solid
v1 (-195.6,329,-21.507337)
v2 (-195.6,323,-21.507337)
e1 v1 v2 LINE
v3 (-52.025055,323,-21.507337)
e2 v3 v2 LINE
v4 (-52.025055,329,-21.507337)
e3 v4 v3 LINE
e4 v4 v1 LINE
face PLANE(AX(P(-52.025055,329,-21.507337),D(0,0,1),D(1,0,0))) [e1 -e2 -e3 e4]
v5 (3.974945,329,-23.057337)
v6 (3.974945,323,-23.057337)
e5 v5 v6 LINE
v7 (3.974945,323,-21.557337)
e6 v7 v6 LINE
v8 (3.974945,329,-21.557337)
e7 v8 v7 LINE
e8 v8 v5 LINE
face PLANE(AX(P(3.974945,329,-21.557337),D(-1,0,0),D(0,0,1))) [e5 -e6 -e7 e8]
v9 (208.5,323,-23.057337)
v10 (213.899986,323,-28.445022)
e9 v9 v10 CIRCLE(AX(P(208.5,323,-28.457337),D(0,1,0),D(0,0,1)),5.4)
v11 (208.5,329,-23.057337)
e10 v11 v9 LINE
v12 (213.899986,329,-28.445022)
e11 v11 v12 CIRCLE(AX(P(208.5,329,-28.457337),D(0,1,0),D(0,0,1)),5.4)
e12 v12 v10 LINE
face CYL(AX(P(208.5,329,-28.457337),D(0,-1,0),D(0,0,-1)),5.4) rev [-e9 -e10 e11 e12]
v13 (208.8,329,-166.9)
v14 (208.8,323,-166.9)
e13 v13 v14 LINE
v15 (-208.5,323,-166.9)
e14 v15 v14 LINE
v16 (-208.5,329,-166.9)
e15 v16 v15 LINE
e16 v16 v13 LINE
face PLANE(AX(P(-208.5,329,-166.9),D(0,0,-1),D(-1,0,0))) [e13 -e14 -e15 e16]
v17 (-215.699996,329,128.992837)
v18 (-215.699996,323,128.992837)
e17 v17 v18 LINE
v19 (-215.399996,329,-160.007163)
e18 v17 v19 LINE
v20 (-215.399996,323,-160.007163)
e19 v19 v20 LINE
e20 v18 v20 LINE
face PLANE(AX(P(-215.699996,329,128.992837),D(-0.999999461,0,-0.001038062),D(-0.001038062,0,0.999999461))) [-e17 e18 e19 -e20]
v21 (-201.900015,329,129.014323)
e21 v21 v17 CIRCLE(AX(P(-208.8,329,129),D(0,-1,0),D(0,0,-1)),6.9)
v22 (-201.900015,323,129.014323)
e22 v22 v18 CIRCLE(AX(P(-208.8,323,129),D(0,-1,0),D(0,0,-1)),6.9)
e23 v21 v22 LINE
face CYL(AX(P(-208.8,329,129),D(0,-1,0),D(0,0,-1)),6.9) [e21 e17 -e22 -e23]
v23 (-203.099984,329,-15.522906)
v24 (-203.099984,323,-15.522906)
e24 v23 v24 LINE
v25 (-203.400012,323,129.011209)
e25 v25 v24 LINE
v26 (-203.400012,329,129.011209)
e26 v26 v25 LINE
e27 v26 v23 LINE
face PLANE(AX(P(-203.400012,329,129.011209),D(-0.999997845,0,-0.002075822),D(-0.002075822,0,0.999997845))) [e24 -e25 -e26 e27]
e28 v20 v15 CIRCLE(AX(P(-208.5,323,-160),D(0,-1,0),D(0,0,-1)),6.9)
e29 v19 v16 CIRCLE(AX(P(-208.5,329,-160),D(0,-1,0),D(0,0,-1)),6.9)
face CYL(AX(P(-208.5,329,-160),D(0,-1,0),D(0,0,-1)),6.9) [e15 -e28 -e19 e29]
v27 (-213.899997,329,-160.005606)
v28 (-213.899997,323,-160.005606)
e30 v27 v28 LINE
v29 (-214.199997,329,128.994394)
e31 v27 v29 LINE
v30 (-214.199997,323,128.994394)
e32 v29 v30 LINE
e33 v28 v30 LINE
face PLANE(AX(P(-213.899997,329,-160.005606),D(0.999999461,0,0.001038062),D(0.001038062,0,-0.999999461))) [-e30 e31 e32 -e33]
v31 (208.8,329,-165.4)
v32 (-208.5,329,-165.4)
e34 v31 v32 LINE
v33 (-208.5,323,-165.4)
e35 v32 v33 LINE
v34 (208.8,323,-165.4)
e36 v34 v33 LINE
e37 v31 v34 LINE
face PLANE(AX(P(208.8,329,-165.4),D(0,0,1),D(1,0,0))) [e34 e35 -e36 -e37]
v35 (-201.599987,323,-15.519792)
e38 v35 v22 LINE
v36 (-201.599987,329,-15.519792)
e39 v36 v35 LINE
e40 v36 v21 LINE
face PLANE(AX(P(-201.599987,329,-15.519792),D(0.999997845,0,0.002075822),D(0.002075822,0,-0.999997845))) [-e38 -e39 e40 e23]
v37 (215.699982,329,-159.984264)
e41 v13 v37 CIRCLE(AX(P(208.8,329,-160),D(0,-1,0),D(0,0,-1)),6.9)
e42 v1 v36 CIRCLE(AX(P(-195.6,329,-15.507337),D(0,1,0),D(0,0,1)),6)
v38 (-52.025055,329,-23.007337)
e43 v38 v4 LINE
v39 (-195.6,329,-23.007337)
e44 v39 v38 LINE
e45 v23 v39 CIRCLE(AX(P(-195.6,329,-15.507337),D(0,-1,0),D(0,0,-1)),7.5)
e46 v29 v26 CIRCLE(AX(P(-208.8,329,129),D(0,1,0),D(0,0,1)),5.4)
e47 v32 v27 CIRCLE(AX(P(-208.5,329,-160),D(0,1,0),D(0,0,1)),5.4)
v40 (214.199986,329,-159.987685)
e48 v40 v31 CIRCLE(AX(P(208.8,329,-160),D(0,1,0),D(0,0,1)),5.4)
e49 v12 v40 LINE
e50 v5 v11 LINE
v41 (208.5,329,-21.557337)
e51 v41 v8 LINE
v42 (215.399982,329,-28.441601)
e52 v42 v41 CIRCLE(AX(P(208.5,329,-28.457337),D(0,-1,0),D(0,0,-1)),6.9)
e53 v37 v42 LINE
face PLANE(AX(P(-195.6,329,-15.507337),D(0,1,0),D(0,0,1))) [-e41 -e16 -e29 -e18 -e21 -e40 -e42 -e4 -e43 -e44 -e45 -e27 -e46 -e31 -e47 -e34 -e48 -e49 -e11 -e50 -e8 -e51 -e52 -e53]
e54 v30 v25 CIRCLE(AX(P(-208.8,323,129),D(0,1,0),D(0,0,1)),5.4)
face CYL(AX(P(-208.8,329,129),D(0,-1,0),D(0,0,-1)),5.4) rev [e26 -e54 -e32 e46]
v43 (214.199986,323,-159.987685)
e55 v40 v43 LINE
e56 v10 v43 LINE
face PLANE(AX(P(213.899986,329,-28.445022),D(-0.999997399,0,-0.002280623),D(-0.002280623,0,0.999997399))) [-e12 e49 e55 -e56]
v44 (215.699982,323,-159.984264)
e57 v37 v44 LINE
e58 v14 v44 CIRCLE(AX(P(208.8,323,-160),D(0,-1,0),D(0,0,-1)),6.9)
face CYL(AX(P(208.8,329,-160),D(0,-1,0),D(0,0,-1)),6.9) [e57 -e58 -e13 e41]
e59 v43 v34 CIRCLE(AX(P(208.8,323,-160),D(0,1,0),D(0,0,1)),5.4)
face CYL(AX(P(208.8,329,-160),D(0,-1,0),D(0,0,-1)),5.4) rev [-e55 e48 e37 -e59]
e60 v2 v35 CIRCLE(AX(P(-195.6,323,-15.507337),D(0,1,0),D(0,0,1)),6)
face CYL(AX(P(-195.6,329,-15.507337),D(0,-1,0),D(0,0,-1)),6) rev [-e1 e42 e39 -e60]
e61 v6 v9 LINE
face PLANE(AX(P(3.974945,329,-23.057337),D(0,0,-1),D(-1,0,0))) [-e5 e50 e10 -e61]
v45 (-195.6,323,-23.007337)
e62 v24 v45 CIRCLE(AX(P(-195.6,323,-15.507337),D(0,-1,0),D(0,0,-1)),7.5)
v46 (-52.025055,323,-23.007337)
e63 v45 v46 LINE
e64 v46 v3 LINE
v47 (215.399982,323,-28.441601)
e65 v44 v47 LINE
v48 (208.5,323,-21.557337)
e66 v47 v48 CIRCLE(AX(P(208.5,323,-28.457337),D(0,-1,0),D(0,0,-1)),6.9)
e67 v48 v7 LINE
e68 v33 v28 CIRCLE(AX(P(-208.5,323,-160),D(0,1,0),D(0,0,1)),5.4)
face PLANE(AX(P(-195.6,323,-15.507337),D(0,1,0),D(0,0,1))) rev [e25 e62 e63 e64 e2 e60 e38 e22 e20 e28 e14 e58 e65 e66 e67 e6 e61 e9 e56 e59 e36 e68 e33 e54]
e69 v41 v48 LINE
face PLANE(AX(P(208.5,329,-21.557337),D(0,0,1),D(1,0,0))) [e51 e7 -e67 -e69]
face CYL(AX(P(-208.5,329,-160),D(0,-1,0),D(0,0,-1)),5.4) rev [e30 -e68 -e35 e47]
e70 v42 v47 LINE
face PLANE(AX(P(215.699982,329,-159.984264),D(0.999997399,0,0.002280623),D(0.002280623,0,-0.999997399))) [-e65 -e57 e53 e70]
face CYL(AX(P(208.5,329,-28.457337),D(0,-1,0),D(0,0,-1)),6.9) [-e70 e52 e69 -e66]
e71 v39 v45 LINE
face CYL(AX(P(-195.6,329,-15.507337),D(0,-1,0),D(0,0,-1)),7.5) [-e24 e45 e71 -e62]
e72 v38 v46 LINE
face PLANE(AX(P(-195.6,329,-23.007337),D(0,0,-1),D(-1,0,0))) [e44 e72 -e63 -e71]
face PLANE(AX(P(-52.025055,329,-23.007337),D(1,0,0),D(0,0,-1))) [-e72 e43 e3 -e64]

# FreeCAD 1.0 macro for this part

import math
import FreeCAD as App
import Part
import Sketcher

V = App.Vector
Q = App.Units.Quantity

doc = App.newDocument("Part")
params = doc.addObject("Spreadsheet::Sheet", "Params")
for row, (alias, value) in enumerate([
    ("sketch1_radius", "6 mm"),
    ("sketch1_radius2", "6.9 mm"),
    ("sketch1_radius3", "5.4 mm"),
    ("sketch1_width", "417.3 mm"),
    ("pad1_length", "6 mm"),
], start=1):
    params.set(f"A{row}", alias)
    params.set(f"B{row}", "=" + value)
    params.setAlias(f"B{row}", alias)

body = doc.addObject("PartDesign::Body", "Body")

sketch1 = body.newObject("Sketcher::SketchObject", "Sketch")
sketch1.AttachmentSupport = (doc.getObject("XZ_Plane"), [""])
sketch1.MapMode = "FlatFace"
sketch1.AttachmentOffset = App.Placement(V(0, 0, -323), App.Rotation())
sketch1.addGeometry([
    Part.LineSegment(V(-52, -21.5, 0), V(-195.6, -21.5, 0)),
    Part.ArcOfCircle(Part.Circle(V(-195.6, -15.5, 0), V(0, 0, 1), 6), math.radians(-180), math.radians(-90)),
    Part.LineSegment(V(-201.6, -15.5, 0), V(-201.9, 129, 0)),
    Part.ArcOfCircle(Part.Circle(V(-208.8, 129, 0), V(0, 0, 1), 6.9), math.radians(0), math.radians(180)),
    Part.LineSegment(V(-215.7, 129, 0), V(-215.4, -160, 0)),
    Part.ArcOfCircle(Part.Circle(V(-208.5, -160, 0), V(0, 0, 1), 6.9), math.radians(-180), math.radians(-90)),
    Part.LineSegment(V(-208.5, -166.9, 0), V(208.8, -166.9, 0)),
    Part.ArcOfCircle(Part.Circle(V(208.8, -160, 0), V(0, 0, 1), 6.9), math.radians(-90), math.radians(0)),
    Part.LineSegment(V(215.7, -160, 0), V(215.4, -28.4, 0)),
    Part.ArcOfCircle(Part.Circle(V(208.5, -28.5, 0), V(0, 0, 1), 6.9), math.radians(0), math.radians(90)),
    Part.LineSegment(V(208.5, -21.6, 0), V(4, -21.6, 0)),
    Part.LineSegment(V(4, -21.6, 0), V(4, -23.1, 0)),
    Part.LineSegment(V(4, -23.1, 0), V(208.5, -23.1, 0)),
    Part.ArcOfCircle(Part.Circle(V(208.5, -28.5, 0), V(0, 0, 1), 5.4), math.radians(0), math.radians(90)),
    Part.LineSegment(V(213.9, -28.4, 0), V(214.2, -160, 0)),
    Part.ArcOfCircle(Part.Circle(V(208.8, -160, 0), V(0, 0, 1), 5.4), math.radians(-90), math.radians(0)),
    Part.LineSegment(V(208.8, -165.4, 0), V(-208.5, -165.4, 0)),
    Part.ArcOfCircle(Part.Circle(V(-208.5, -160, 0), V(0, 0, 1), 5.4), math.radians(-180), math.radians(-90)),
    Part.LineSegment(V(-213.9, -160, 0), V(-214.2, 129, 0)),
    Part.ArcOfCircle(Part.Circle(V(-208.8, 129, 0), V(0, 0, 1), 5.4), math.radians(0), math.radians(180)),
    Part.LineSegment(V(-203.4, 129, 0), V(-203.1, -15.5, 0)),
    Part.ArcOfCircle(Part.Circle(V(-195.6, -15.5, 0), V(0, 0, 1), 7.5), math.radians(-180), math.radians(-90)),
    Part.LineSegment(V(-195.6, -23, 0), V(-52, -23, 0)),
    Part.LineSegment(V(-52, -23, 0), V(-52, -21.5, 0)),
], False)
sketch1.addConstraint([
    Sketcher.Constraint("Tangent", 0, 2, 1, 2),
    Sketcher.Constraint("Tangent", 1, 1, 2, 1),
    Sketcher.Constraint("Tangent", 2, 2, 3, 1),
    Sketcher.Constraint("Tangent", 3, 2, 4, 1),
    Sketcher.Constraint("Tangent", 4, 2, 5, 1),
    Sketcher.Constraint("Tangent", 5, 2, 6, 1),
    Sketcher.Constraint("Tangent", 6, 2, 7, 1),
    Sketcher.Constraint("Tangent", 7, 2, 8, 1),
    Sketcher.Constraint("Tangent", 8, 2, 9, 1),
    Sketcher.Constraint("Tangent", 9, 2, 10, 1),
    Sketcher.Constraint("Coincident", 10, 2, 11, 1),
    Sketcher.Constraint("Coincident", 11, 2, 12, 1),
    Sketcher.Constraint("Tangent", 12, 2, 13, 2),
    Sketcher.Constraint("Tangent", 13, 1, 14, 1),
    Sketcher.Constraint("Tangent", 14, 2, 15, 2),
    Sketcher.Constraint("Tangent", 15, 1, 16, 1),
    Sketcher.Constraint("Tangent", 16, 2, 17, 2),
    Sketcher.Constraint("Tangent", 17, 1, 18, 1),
    Sketcher.Constraint("Tangent", 18, 2, 19, 2),
    Sketcher.Constraint("Tangent", 19, 1, 20, 1),
    Sketcher.Constraint("Tangent", 20, 2, 21, 1),
    Sketcher.Constraint("Tangent", 21, 2, 22, 1),
    Sketcher.Constraint("Coincident", 22, 2, 23, 1),
    Sketcher.Constraint("Coincident", 23, 2, 0, 1),
    Sketcher.Constraint("Horizontal", 0),
    Sketcher.Constraint("Horizontal", 6),
    Sketcher.Constraint("Horizontal", 10),
    Sketcher.Constraint("Vertical", 11),
    Sketcher.Constraint("Horizontal", 12),
    Sketcher.Constraint("Horizontal", 16),
    Sketcher.Constraint("Horizontal", 22),
    Sketcher.Constraint("Vertical", 23),
    Sketcher.Constraint("Coincident", 13, 3, 9, 3),
    Sketcher.Constraint("Coincident", 15, 3, 7, 3),
    Sketcher.Constraint("Coincident", 17, 3, 5, 3),
    Sketcher.Constraint("Coincident", 19, 3, 3, 3),
    Sketcher.Constraint("Coincident", 21, 3, 1, 3),
    Sketcher.Constraint("Equal", 3, 5),
    Sketcher.Constraint("Equal", 5, 7),
    Sketcher.Constraint("Equal", 7, 9),
    Sketcher.Constraint("Equal", 13, 15),
    Sketcher.Constraint("Equal", 17, 19),
    Sketcher.Constraint("Parallel", 2, 20),
    Sketcher.Constraint("Radius", 1, Q("6 mm")),
    Sketcher.Constraint("Radius", 3, Q("6.9 mm")),
    Sketcher.Constraint("Radius", 13, Q("5.4 mm")),
    Sketcher.Constraint("DistanceX", 6, 1, 6, 2, Q("417.3 mm")),
    Sketcher.Constraint("DistanceY", -1, 1, 3, 3, Q("129 mm")),
    Sketcher.Constraint("DistanceY", 5, 3, -1, 1, Q("160 mm")),
    Sketcher.Constraint("DistanceX", 5, 3, 9, 3, Q("417 mm")),
    Sketcher.Constraint("DistanceX", 22, 2, 11, 2, Q("56 mm")),
    Sketcher.Constraint("DistanceX", 1, 3, -1, 1, Q("195.6 mm")),
    Sketcher.Constraint("DistanceX", 3, 3, -1, 1, Q("208.8 mm")),
    Sketcher.Constraint("DistanceX", 5, 3, -1, 1, Q("208.5 mm")),
    Sketcher.Constraint("DistanceY", 9, 3, 1, 3, Q("12.95 mm")),
    Sketcher.Constraint("DistanceY", 8, 2, -1, 1, Q("28.441601 mm")),
    Sketcher.Constraint("DistanceX", 0, 2, 0, 1, Q("143.574945 mm")),
])
sketch1.setExpression("Constraints[43]", "Params.sketch1_radius")
sketch1.setExpression("Constraints[44]", "Params.sketch1_radius2")
sketch1.setExpression("Constraints[45]", "Params.sketch1_radius3")
sketch1.setExpression("Constraints[46]", "Params.sketch1_width")
pad1 = body.newObject("PartDesign::Pad", "Pad")
pad1.Profile = sketch1
pad1.setExpression("Length", "Params.pad1_length")
pad1.Reversed = True

doc.recompute()
